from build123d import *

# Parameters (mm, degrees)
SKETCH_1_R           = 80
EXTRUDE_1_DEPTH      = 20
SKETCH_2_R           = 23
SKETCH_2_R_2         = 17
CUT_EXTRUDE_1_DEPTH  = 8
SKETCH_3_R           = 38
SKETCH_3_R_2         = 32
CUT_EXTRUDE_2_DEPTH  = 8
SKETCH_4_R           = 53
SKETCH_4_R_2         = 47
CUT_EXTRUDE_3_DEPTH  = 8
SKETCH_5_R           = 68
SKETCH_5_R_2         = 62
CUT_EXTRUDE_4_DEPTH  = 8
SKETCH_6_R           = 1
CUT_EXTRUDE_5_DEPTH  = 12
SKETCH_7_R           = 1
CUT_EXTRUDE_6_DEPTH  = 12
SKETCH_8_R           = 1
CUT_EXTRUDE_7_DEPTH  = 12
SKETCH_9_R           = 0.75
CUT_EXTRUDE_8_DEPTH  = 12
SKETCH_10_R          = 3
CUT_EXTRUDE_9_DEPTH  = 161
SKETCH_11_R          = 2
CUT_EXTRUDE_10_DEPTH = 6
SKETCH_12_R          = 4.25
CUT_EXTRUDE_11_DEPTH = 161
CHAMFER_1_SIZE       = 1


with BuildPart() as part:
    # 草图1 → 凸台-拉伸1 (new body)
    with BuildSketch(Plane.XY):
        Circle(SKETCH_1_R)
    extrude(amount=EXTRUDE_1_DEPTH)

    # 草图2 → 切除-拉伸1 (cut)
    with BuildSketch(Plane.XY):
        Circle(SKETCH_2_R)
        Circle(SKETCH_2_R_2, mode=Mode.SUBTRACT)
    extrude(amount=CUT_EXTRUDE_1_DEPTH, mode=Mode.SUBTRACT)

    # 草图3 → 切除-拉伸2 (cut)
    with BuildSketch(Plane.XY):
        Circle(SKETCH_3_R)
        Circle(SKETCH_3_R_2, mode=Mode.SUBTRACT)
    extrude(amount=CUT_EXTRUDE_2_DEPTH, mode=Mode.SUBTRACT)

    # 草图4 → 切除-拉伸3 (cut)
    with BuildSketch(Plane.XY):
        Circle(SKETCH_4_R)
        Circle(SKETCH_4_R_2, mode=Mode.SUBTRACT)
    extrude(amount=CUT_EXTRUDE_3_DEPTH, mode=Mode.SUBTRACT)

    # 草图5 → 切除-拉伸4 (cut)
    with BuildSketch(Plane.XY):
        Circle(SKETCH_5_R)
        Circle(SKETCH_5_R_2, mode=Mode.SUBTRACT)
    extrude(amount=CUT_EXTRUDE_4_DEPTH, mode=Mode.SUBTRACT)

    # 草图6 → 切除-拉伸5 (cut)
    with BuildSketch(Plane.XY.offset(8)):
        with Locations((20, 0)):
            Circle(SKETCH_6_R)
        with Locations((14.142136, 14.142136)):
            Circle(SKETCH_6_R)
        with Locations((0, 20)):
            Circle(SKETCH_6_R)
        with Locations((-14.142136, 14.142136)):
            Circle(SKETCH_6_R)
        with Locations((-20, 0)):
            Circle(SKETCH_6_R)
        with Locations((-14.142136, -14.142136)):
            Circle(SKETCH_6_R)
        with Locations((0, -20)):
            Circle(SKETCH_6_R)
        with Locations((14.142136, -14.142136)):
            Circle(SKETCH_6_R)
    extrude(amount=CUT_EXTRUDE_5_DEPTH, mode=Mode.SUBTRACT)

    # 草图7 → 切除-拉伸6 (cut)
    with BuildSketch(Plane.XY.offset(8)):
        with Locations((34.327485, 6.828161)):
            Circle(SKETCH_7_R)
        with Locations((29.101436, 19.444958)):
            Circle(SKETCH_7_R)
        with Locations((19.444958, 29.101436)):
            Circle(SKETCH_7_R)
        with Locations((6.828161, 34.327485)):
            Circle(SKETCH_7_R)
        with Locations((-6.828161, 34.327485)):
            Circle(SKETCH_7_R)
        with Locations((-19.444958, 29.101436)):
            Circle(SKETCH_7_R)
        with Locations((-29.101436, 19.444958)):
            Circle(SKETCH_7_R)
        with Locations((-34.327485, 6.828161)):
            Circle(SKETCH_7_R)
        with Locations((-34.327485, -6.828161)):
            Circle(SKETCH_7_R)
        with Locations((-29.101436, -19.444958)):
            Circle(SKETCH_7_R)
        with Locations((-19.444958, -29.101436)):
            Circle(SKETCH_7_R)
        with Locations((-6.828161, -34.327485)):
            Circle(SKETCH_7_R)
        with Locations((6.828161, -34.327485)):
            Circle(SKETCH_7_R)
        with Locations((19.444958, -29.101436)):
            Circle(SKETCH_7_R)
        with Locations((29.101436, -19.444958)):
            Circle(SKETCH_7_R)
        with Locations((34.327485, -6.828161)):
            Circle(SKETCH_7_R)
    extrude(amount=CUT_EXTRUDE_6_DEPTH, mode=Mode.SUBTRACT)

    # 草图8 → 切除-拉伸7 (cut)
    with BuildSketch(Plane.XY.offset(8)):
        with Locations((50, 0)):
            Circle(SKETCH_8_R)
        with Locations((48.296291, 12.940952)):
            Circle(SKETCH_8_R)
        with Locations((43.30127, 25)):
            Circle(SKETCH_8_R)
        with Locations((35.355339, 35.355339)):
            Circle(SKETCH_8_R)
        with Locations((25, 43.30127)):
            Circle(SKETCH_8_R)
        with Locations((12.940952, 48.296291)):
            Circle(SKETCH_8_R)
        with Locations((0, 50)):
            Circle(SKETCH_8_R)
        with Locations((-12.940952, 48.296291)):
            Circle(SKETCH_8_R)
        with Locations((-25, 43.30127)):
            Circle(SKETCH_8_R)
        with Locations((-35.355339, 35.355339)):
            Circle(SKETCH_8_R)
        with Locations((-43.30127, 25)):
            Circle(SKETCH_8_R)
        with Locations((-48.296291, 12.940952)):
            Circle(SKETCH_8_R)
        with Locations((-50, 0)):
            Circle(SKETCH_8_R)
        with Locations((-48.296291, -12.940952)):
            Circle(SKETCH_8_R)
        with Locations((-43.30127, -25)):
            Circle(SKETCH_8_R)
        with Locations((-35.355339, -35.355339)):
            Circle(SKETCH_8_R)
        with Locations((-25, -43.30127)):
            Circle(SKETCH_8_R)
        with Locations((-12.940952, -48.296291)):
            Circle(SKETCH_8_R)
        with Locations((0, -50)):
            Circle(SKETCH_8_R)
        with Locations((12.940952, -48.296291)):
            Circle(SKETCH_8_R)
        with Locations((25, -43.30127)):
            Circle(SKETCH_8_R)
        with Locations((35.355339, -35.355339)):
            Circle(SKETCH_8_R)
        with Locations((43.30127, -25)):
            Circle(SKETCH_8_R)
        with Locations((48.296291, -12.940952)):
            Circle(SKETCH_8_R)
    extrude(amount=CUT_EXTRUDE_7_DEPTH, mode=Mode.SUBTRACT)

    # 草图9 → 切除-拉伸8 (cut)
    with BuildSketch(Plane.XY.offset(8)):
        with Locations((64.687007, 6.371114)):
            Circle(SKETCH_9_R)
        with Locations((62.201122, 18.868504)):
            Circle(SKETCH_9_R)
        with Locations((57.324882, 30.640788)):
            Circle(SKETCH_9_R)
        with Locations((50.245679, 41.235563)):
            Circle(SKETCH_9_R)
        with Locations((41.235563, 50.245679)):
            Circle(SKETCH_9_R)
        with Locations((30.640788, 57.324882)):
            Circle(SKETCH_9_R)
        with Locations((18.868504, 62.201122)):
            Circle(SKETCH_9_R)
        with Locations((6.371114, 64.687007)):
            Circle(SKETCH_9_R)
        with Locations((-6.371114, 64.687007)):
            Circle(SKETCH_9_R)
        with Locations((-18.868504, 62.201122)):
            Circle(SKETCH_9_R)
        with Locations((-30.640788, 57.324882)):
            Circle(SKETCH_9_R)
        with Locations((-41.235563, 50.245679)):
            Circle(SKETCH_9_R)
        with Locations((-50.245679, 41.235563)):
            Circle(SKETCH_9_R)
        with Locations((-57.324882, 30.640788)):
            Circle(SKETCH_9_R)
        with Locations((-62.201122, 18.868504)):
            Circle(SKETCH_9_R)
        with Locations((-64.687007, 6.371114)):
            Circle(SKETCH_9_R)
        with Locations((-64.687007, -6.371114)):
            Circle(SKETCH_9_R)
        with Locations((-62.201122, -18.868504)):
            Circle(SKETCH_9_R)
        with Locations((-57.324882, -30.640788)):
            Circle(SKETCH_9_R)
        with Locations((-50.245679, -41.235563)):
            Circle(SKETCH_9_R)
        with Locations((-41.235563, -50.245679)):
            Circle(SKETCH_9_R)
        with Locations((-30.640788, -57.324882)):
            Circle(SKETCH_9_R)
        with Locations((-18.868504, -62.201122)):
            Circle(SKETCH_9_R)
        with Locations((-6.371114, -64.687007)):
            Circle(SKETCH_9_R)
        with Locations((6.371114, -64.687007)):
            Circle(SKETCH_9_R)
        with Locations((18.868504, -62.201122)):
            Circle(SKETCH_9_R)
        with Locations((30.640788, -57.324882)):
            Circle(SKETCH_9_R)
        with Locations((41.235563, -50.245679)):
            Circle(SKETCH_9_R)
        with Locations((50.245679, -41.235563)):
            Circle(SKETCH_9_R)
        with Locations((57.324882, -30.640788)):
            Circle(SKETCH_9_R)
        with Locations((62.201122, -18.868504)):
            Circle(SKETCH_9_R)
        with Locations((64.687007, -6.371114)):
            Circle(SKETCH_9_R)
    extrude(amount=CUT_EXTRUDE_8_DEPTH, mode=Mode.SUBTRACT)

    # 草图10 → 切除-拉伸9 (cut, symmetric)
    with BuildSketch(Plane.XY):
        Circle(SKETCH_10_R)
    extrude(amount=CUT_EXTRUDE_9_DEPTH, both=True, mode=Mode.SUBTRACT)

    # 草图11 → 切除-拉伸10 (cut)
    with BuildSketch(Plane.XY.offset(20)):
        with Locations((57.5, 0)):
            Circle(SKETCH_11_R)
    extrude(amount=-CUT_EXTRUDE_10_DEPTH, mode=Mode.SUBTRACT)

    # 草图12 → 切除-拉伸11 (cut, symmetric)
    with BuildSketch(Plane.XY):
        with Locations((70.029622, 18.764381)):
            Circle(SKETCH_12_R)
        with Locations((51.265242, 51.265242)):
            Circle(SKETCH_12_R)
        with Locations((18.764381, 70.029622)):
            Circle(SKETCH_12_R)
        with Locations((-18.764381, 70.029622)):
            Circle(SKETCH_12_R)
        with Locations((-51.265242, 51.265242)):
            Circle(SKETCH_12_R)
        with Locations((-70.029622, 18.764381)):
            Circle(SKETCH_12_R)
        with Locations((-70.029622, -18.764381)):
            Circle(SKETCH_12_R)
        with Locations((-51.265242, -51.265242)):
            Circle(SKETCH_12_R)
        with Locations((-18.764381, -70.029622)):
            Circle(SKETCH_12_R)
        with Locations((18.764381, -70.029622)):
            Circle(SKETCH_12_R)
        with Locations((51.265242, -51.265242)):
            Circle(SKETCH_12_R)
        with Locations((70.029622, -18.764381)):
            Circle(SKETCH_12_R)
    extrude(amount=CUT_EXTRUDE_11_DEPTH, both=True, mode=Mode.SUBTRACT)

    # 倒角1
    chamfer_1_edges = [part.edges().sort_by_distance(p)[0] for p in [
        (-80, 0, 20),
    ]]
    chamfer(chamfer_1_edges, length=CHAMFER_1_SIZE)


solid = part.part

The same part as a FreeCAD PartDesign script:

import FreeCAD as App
import Part
import Sketcher

V = App.Vector


def edges_at(feature, points):
    """Names of the edges that pass closest to the given points."""
    edges = feature.Shape.Edges
    near = lambda p: min(range(len(edges)), key=lambda i: edges[i].distToShape(Part.Vertex(*p))[0])
    return sorted({f"Edge{near(p) + 1}" for p in points})

doc = App.newDocument("Part")
body = doc.addObject("PartDesign::Body", "Body")

# Sketch on XY plane
sketch1 = doc.addObject("Sketcher::SketchObject", "Sketch")
body.addObject(sketch1)
sketch1.AttachmentSupport = (doc.XY_Plane, [""])
sketch1.MapMode = "FlatFace"
sketch1.addGeometry(Part.Circle(V(0, 0, 0), V(0, 0, 1), 80), False)
sketch1.addConstraint(Sketcher.Constraint("Coincident", 0, 3, -1, 1))
sketch1.addConstraint(Sketcher.Constraint("Diameter", 0, 160.0))
pad1 = doc.addObject("PartDesign::Pad", "Pad")
body.addObject(pad1)
pad1.Profile = sketch1
pad1.Length = 20

# Sketch on XY plane
sketch2 = doc.addObject("Sketcher::SketchObject", "Sketch001")
body.addObject(sketch2)
sketch2.AttachmentSupport = (doc.XY_Plane, [""])
sketch2.MapMode = "FlatFace"
sketch2.addGeometry(Part.Circle(V(0, 0, 0), V(0, 0, 1), 23), False)
sketch2.addGeometry(Part.Circle(V(0, 0, 0), V(0, 0, 1), 17), False)
sketch2.addConstraint(Sketcher.Constraint("Coincident", 0, 3, -1, 1))
sketch2.addConstraint(Sketcher.Constraint("Coincident", 1, 3, -1, 1))
sketch2.addConstraint(Sketcher.Constraint("Diameter", 0, 46.0))
sketch2.addConstraint(Sketcher.Constraint("Diameter", 1, 34.0))
pocket1 = doc.addObject("PartDesign::Pocket", "Pocket")
body.addObject(pocket1)
pocket1.Profile = sketch2
pocket1.Length = 8
pocket1.Reversed = True

# Sketch on XY plane
sketch3 = doc.addObject("Sketcher::SketchObject", "Sketch002")
body.addObject(sketch3)
sketch3.AttachmentSupport = (doc.XY_Plane, [""])
sketch3.MapMode = "FlatFace"
sketch3.addGeometry(Part.Circle(V(0, 0, 0), V(0, 0, 1), 38), False)
sketch3.addGeometry(Part.Circle(V(0, 0, 0), V(0, 0, 1), 32), False)
sketch3.addConstraint(Sketcher.Constraint("Coincident", 0, 3, -1, 1))
sketch3.addConstraint(Sketcher.Constraint("Coincident", 1, 3, -1, 1))
sketch3.addConstraint(Sketcher.Constraint("Diameter", 0, 76.0))
sketch3.addConstraint(Sketcher.Constraint("Diameter", 1, 64.0))
pocket2 = doc.addObject("PartDesign::Pocket", "Pocket001")
body.addObject(pocket2)
pocket2.Profile = sketch3
pocket2.Length = 8
pocket2.Reversed = True

# Sketch on XY plane
sketch4 = doc.addObject("Sketcher::SketchObject", "Sketch003")
body.addObject(sketch4)
sketch4.AttachmentSupport = (doc.XY_Plane, [""])
sketch4.MapMode = "FlatFace"
sketch4.addGeometry(Part.Circle(V(0, 0, 0), V(0, 0, 1), 53), False)
sketch4.addGeometry(Part.Circle(V(0, 0, 0), V(0, 0, 1), 47), False)
sketch4.addConstraint(Sketcher.Constraint("Coincident", 0, 3, -1, 1))
sketch4.addConstraint(Sketcher.Constraint("Coincident", 1, 3, -1, 1))
sketch4.addConstraint(Sketcher.Constraint("Diameter", 0, 106.0))
sketch4.addConstraint(Sketcher.Constraint("Diameter", 1, 94.0))
pocket3 = doc.addObject("PartDesign::Pocket", "Pocket002")
body.addObject(pocket3)
pocket3.Profile = sketch4
pocket3.Length = 8
pocket3.Reversed = True

# Sketch on XY plane
sketch5 = doc.addObject("Sketcher::SketchObject", "Sketch004")
body.addObject(sketch5)
sketch5.AttachmentSupport = (doc.XY_Plane, [""])
sketch5.MapMode = "FlatFace"
sketch5.addGeometry(Part.Circle(V(0, 0, 0), V(0, 0, 1), 68), False)
sketch5.addGeometry(Part.Circle(V(0, 0, 0), V(0, 0, 1), 62), False)
sketch5.addConstraint(Sketcher.Constraint("Coincident", 0, 3, -1, 1))
sketch5.addConstraint(Sketcher.Constraint("Coincident", 1, 3, -1, 1))
sketch5.addConstraint(Sketcher.Constraint("Diameter", 0, 136.0))
sketch5.addConstraint(Sketcher.Constraint("Diameter", 1, 124.0))
pocket4 = doc.addObject("PartDesign::Pocket", "Pocket003")
body.addObject(pocket4)
pocket4.Profile = sketch5
pocket4.Length = 8
pocket4.Reversed = True

# Sketch on XY plane
sketch6 = doc.addObject("Sketcher::SketchObject", "Sketch005")
body.addObject(sketch6)
sketch6.AttachmentSupport = (doc.XY_Plane, [""])
sketch6.MapMode = "FlatFace"
sketch6.AttachmentOffset = App.Placement(V(0, 0, 8), App.Rotation())
sketch6.addGeometry(Part.Circle(V(20, 0, 0), V(0, 0, 1), 1), False)
sketch6.addGeometry(Part.Circle(V(14.142136, 14.142136, 0), V(0, 0, 1), 1), False)
sketch6.addGeometry(Part.Circle(V(0, 20, 0), V(0, 0, 1), 1), False)
sketch6.addGeometry(Part.Circle(V(-14.142136, 14.142136, 0), V(0, 0, 1), 1), False)
sketch6.addGeometry(Part.Circle(V(-20, 0, 0), V(0, 0, 1), 1), False)
sketch6.addGeometry(Part.Circle(V(-14.142136, -14.142136, 0), V(0, 0, 1), 1), False)
sketch6.addGeometry(Part.Circle(V(0, -20, 0), V(0, 0, 1), 1), False)
sketch6.addGeometry(Part.Circle(V(14.142136, -14.142136, 0), V(0, 0, 1), 1), False)
sketch6.addConstraint(Sketcher.Constraint("Equal", 0, 1))
sketch6.addConstraint(Sketcher.Constraint("Equal", 1, 2))
sketch6.addConstraint(Sketcher.Constraint("Equal", 2, 3))
sketch6.addConstraint(Sketcher.Constraint("Equal", 3, 4))
sketch6.addConstraint(Sketcher.Constraint("Equal", 4, 5))
sketch6.addConstraint(Sketcher.Constraint("Equal", 5, 6))
sketch6.addConstraint(Sketcher.Constraint("Equal", 6, 7))
sketch6.addConstraint(Sketcher.Constraint("Symmetric", 0, 3, 4, 3, -1, 1))
sketch6.addConstraint(Sketcher.Constraint("Symmetric", 1, 3, 5, 3, -1, 1))
sketch6.addConstraint(Sketcher.Constraint("Symmetric", 2, 3, 6, 3, -1, 1))
sketch6.addConstraint(Sketcher.Constraint("Symmetric", 3, 3, 7, 3, -1, 1))
sketch6.addConstraint(Sketcher.Constraint("Symmetric", 1, 3, 3, 3, -2))
sketch6.addConstraint(Sketcher.Constraint("PointOnObject", 0, 3, -1))
sketch6.addConstraint(Sketcher.Constraint("PointOnObject", 2, 3, -2))
sketch6.addConstraint(Sketcher.Constraint("Diameter", 0, 2.0))
sketch6.addConstraint(Sketcher.Constraint("DistanceX", -1, 1, 0, 3, 20.0))
sketch6.addConstraint(Sketcher.Constraint("DistanceY", -1, 1, 2, 3, 20.0))
sketch6.addConstraint(Sketcher.Constraint("DistanceX", -1, 1, 1, 3, 14.142136))
sketch6.addConstraint(Sketcher.Constraint("DistanceY", -1, 1, 1, 3, 14.142136))
pocket5 = doc.addObject("PartDesign::Pocket", "Pocket004")
body.addObject(pocket5)
pocket5.Profile = sketch6
pocket5.Length = 12
pocket5.Reversed = True

# Sketch on XY plane
sketch7 = doc.addObject("Sketcher::SketchObject", "Sketch006")
body.addObject(sketch7)
sketch7.AttachmentSupport = (doc.XY_Plane, [""])
sketch7.MapMode = "FlatFace"
sketch7.AttachmentOffset = App.Placement(V(0, 0, 8), App.Rotation())
sketch7.addGeometry(Part.Circle(V(34.327485, 6.828161, 0), V(0, 0, 1), 1), False)
sketch7.addGeometry(Part.Circle(V(29.101436, 19.444958, 0), V(0, 0, 1), 1), False)
sketch7.addGeometry(Part.Circle(V(19.444958, 29.101436, 0), V(0, 0, 1), 1), False)
sketch7.addGeometry(Part.Circle(V(6.828161, 34.327485, 0), V(0, 0, 1), 1), False)
sketch7.addGeometry(Part.Circle(V(-6.828161, 34.327485, 0), V(0, 0, 1), 1), False)
sketch7.addGeometry(Part.Circle(V(-19.444958, 29.101436, 0), V(0, 0, 1), 1), False)
sketch7.addGeometry(Part.Circle(V(-29.101436, 19.444958, 0), V(0, 0, 1), 1), False)
sketch7.addGeometry(Part.Circle(V(-34.327485, 6.828161, 0), V(0, 0, 1), 1), False)
sketch7.addGeometry(Part.Circle(V(-34.327485, -6.828161, 0), V(0, 0, 1), 1), False)
sketch7.addGeometry(Part.Circle(V(-29.101436, -19.444958, 0), V(0, 0, 1), 1), False)
sketch7.addGeometry(Part.Circle(V(-19.444958, -29.101436, 0), V(0, 0, 1), 1), False)
sketch7.addGeometry(Part.Circle(V(-6.828161, -34.327485, 0), V(0, 0, 1), 1), False)
sketch7.addGeometry(Part.Circle(V(6.828161, -34.327485, 0), V(0, 0, 1), 1), False)
sketch7.addGeometry(Part.Circle(V(19.444958, -29.101436, 0), V(0, 0, 1), 1), False)
sketch7.addGeometry(Part.Circle(V(29.101436, -19.444958, 0), V(0, 0, 1), 1), False)
sketch7.addGeometry(Part.Circle(V(34.327485, -6.828161, 0), V(0, 0, 1), 1), False)
sketch7.addConstraint(Sketcher.Constraint("Equal", 0, 1))
sketch7.addConstraint(Sketcher.Constraint("Equal", 1, 2))
sketch7.addConstraint(Sketcher.Constraint("Equal", 2, 3))
sketch7.addConstraint(Sketcher.Constraint("Equal", 3, 4))
sketch7.addConstraint(Sketcher.Constraint("Equal", 4, 5))
sketch7.addConstraint(Sketcher.Constraint("Equal", 5, 6))
sketch7.addConstraint(Sketcher.Constraint("Equal", 6, 7))
sketch7.addConstraint(Sketcher.Constraint("Equal", 7, 8))
sketch7.addConstraint(Sketcher.Constraint("Equal", 8, 9))
sketch7.addConstraint(Sketcher.Constraint("Equal", 9, 10))
sketch7.addConstraint(Sketcher.Constraint("Equal", 10, 11))
sketch7.addConstraint(Sketcher.Constraint("Equal", 11, 12))
sketch7.addConstraint(Sketcher.Constraint("Equal", 12, 13))
sketch7.addConstraint(Sketcher.Constraint("Equal", 13, 14))
sketch7.addConstraint(Sketcher.Constraint("Equal", 14, 15))
sketch7.addConstraint(Sketcher.Constraint("Symmetric", 0, 3, 8, 3, -1, 1))
sketch7.addConstraint(Sketcher.Constraint("Symmetric", 1, 3, 9, 3, -1, 1))
sketch7.addConstraint(Sketcher.Constraint("Symmetric", 2, 3, 10, 3, -1, 1))
sketch7.addConstraint(Sketcher.Constraint("Symmetric", 3, 3, 11, 3, -1, 1))
sketch7.addConstraint(Sketcher.Constraint("Symmetric", 4, 3, 12, 3, -1, 1))
sketch7.addConstraint(Sketcher.Constraint("Symmetric", 5, 3, 13, 3, -1, 1))
sketch7.addConstraint(Sketcher.Constraint("Symmetric", 6, 3, 14, 3, -1, 1))
sketch7.addConstraint(Sketcher.Constraint("Symmetric", 7, 3, 15, 3, -1, 1))
sketch7.addConstraint(Sketcher.Constraint("Symmetric", 3, 3, 4, 3, -2))
sketch7.addConstraint(Sketcher.Constraint("Symmetric", 2, 3, 5, 3, -2))
sketch7.addConstraint(Sketcher.Constraint("Symmetric", 1, 3, 6, 3, -2))
sketch7.addConstraint(Sketcher.Constraint("Symmetric", 0, 3, 7, 3, -2))
sketch7.addConstraint(Sketcher.Constraint("Diameter", 0, 2.0))
sketch7.addConstraint(Sketcher.Constraint("DistanceY", -1, 1, 0, 3, 6.828161))
sketch7.addConstraint(Sketcher.Constraint("DistanceY", -1, 1, 1, 3, 19.444958))
sketch7.addConstraint(Sketcher.Constraint("DistanceX", -1, 1, 2, 3, 19.444958))
sketch7.addConstraint(Sketcher.Constraint("DistanceX", -1, 1, 3, 3, 6.828161))
sketch7.addConstraint(Sketcher.Constraint("DistanceX", 1, 3, 0, 3, 5.226049))
sketch7.addConstraint(Sketcher.Constraint("DistanceY", 2, 3, 3, 3, 5.226049))
sketch7.addConstraint(Sketcher.Constraint("DistanceX", -1, 1, 0, 3, 34.327485))
sketch7.addConstraint(Sketcher.Constraint("DistanceY", -1, 1, 2, 3, 29.101436))
pocket6 = doc.addObject("PartDesign::Pocket", "Pocket005")
body.addObject(pocket6)
pocket6.Profile = sketch7
pocket6.Length = 12
pocket6.Reversed = True

# Sketch on XY plane
sketch8 = doc.addObject("Sketcher::SketchObject", "Sketch007")
body.addObject(sketch8)
sketch8.AttachmentSupport = (doc.XY_Plane, [""])
sketch8.MapMode = "FlatFace"
sketch8.AttachmentOffset = App.Placement(V(0, 0, 8), App.Rotation())
sketch8.addGeometry(Part.Circle(V(50, 0, 0), V(0, 0, 1), 1), False)
sketch8.addGeometry(Part.Circle(V(48.296291, 12.940952, 0), V(0, 0, 1), 1), False)
sketch8.addGeometry(Part.Circle(V(43.30127, 25, 0), V(0, 0, 1), 1), False)
sketch8.addGeometry(Part.Circle(V(35.355339, 35.355339, 0), V(0, 0, 1), 1), False)
sketch8.addGeometry(Part.Circle(V(25, 43.30127, 0), V(0, 0, 1), 1), False)
sketch8.addGeometry(Part.Circle(V(12.940952, 48.296291, 0), V(0, 0, 1), 1), False)
sketch8.addGeometry(Part.Circle(V(0, 50, 0), V(0, 0, 1), 1), False)
sketch8.addGeometry(Part.Circle(V(-12.940952, 48.296291, 0), V(0, 0, 1), 1), False)
sketch8.addGeometry(Part.Circle(V(-25, 43.30127, 0), V(0, 0, 1), 1), False)
sketch8.addGeometry(Part.Circle(V(-35.355339, 35.355339, 0), V(0, 0, 1), 1), False)
sketch8.addGeometry(Part.Circle(V(-43.30127, 25, 0), V(0, 0, 1), 1), False)
sketch8.addGeometry(Part.Circle(V(-48.296291, 12.940952, 0), V(0, 0, 1), 1), False)
sketch8.addGeometry(Part.Circle(V(-50, 0, 0), V(0, 0, 1), 1), False)
sketch8.addGeometry(Part.Circle(V(-48.296291, -12.940952, 0), V(0, 0, 1), 1), False)
sketch8.addGeometry(Part.Circle(V(-43.30127, -25, 0), V(0, 0, 1), 1), False)
sketch8.addGeometry(Part.Circle(V(-35.355339, -35.355339, 0), V(0, 0, 1), 1), False)
sketch8.addGeometry(Part.Circle(V(-25, -43.30127, 0), V(0, 0, 1), 1), False)
sketch8.addGeometry(Part.Circle(V(-12.940952, -48.296291, 0), V(0, 0, 1), 1), False)
sketch8.addGeometry(Part.Circle(V(0, -50, 0), V(0, 0, 1), 1), False)
sketch8.addGeometry(Part.Circle(V(12.940952, -48.296291, 0), V(0, 0, 1), 1), False)
sketch8.addGeometry(Part.Circle(V(25, -43.30127, 0), V(0, 0, 1), 1), False)
sketch8.addGeometry(Part.Circle(V(35.355339, -35.355339, 0), V(0, 0, 1), 1), False)
sketch8.addGeometry(Part.Circle(V(43.30127, -25, 0), V(0, 0, 1), 1), False)
sketch8.addGeometry(Part.Circle(V(48.296291, -12.940952, 0), V(0, 0, 1), 1), False)
sketch8.addConstraint(Sketcher.Constraint("Equal", 0, 1))
sketch8.addConstraint(Sketcher.Constraint("Equal", 1, 2))
sketch8.addConstraint(Sketcher.Constraint("Equal", 2, 3))
sketch8.addConstraint(Sketcher.Constraint("Equal", 3, 4))
sketch8.addConstraint(Sketcher.Constraint("Equal", 4, 5))
sketch8.addConstraint(Sketcher.Constraint("Equal", 5, 6))
sketch8.addConstraint(Sketcher.Constraint("Equal", 6, 7))
sketch8.addConstraint(Sketcher.Constraint("Equal", 7, 8))
sketch8.addConstraint(Sketcher.Constraint("Equal", 8, 9))
sketch8.addConstraint(Sketcher.Constraint("Equal", 9, 10))
sketch8.addConstraint(Sketcher.Constraint("Equal", 10, 11))
sketch8.addConstraint(Sketcher.Constraint("Equal", 11, 12))
sketch8.addConstraint(Sketcher.Constraint("Equal", 12, 13))
sketch8.addConstraint(Sketcher.Constraint("Equal", 13, 14))
sketch8.addConstraint(Sketcher.Constraint("Equal", 14, 15))
sketch8.addConstraint(Sketcher.Constraint("Equal", 15, 16))
sketch8.addConstraint(Sketcher.Constraint("Equal", 16, 17))
sketch8.addConstraint(Sketcher.Constraint("Equal", 17, 18))
sketch8.addConstraint(Sketcher.Constraint("Equal", 18, 19))
sketch8.addConstraint(Sketcher.Constraint("Equal", 19, 20))
sketch8.addConstraint(Sketcher.Constraint("Equal", 20, 21))
sketch8.addConstraint(Sketcher.Constraint("Equal", 21, 22))
sketch8.addConstraint(Sketcher.Constraint("Equal", 22, 23))
sketch8.addConstraint(Sketcher.Constraint("Symmetric", 0, 3, 12, 3, -1, 1))
sketch8.addConstraint(Sketcher.Constraint("Symmetric", 1, 3, 13, 3, -1, 1))
sketch8.addConstraint(Sketcher.Constraint("Symmetric", 2, 3, 14, 3, -1, 1))
sketch8.addConstraint(Sketcher.Constraint("Symmetric", 3, 3, 15, 3, -1, 1))
sketch8.addConstraint(Sketcher.Constraint("Symmetric", 4, 3, 16, 3, -1, 1))
sketch8.addConstraint(Sketcher.Constraint("Symmetric", 5, 3, 17, 3, -1, 1))
sketch8.addConstraint(Sketcher.Constraint("Symmetric", 6, 3, 18, 3, -1, 1))
sketch8.addConstraint(Sketcher.Constraint("Symmetric", 7, 3, 19, 3, -1, 1))
sketch8.addConstraint(Sketcher.Constraint("Symmetric", 8, 3, 20, 3, -1, 1))
sketch8.addConstraint(Sketcher.Constraint("Symmetric", 9, 3, 21, 3, -1, 1))
sketch8.addConstraint(Sketcher.Constraint("Symmetric", 10, 3, 22, 3, -1, 1))
sketch8.addConstraint(Sketcher.Constraint("Symmetric", 11, 3, 23, 3, -1, 1))
sketch8.addConstraint(Sketcher.Constraint("Symmetric", 5, 3, 7, 3, -2))
sketch8.addConstraint(Sketcher.Constraint("Symmetric", 4, 3, 8, 3, -2))
sketch8.addConstraint(Sketcher.Constraint("Symmetric", 3, 3, 9, 3, -2))
sketch8.addConstraint(Sketcher.Constraint("Symmetric", 2, 3, 10, 3, -2))
sketch8.addConstraint(Sketcher.Constraint("Symmetric", 1, 3, 11, 3, -2))
sketch8.addConstraint(Sketcher.Constraint("PointOnObject", 0, 3, -1))
sketch8.addConstraint(Sketcher.Constraint("PointOnObject", 6, 3, -2))
sketch8.addConstraint(Sketcher.Constraint("Diameter", 0, 2.0))
sketch8.addConstraint(Sketcher.Constraint("DistanceX", -1, 1, 0, 3, 50.0))
sketch8.addConstraint(Sketcher.Constraint("DistanceY", -1, 1, 2, 3, 25.0))
sketch8.addConstraint(Sketcher.Constraint("DistanceX", -1, 1, 4, 3, 25.0))
sketch8.addConstraint(Sketcher.Constraint("DistanceY", -1, 1, 6, 3, 50.0))
sketch8.addConstraint(Sketcher.Constraint("DistanceX", -1, 1, 1, 3, 48.296291))
sketch8.addConstraint(Sketcher.Constraint("DistanceY", -1, 1, 1, 3, 12.940952))
sketch8.addConstraint(Sketcher.Constraint("DistanceX", -1, 1, 2, 3, 43.30127))
sketch8.addConstraint(Sketcher.Constraint("DistanceX", -1, 1, 3, 3, 35.355339))
sketch8.addConstraint(Sketcher.Constraint("DistanceY", -1, 1, 3, 3, 35.355339))
sketch8.addConstraint(Sketcher.Constraint("DistanceY", -1, 1, 4, 3, 43.30127))
sketch8.addConstraint(Sketcher.Constraint("DistanceX", -1, 1, 5, 3, 12.940952))
sketch8.addConstraint(Sketcher.Constraint("DistanceY", -1, 1, 5, 3, 48.296291))
pocket7 = doc.addObject("PartDesign::Pocket", "Pocket006")
body.addObject(pocket7)
pocket7.Profile = sketch8
pocket7.Length = 12
pocket7.Reversed = True

# Sketch on XY plane
sketch9 = doc.addObject("Sketcher::SketchObject", "Sketch008")
body.addObject(sketch9)
sketch9.AttachmentSupport = (doc.XY_Plane, [""])
sketch9.MapMode = "FlatFace"
sketch9.AttachmentOffset = App.Placement(V(0, 0, 8), App.Rotation())
sketch9.addGeometry(Part.Circle(V(64.687007, 6.371114, 0), V(0, 0, 1), 0.75), False)
sketch9.addGeometry(Part.Circle(V(62.201122, 18.868504, 0), V(0, 0, 1), 0.75), False)
sketch9.addGeometry(Part.Circle(V(57.324882, 30.640788, 0), V(0, 0, 1), 0.75), False)
sketch9.addGeometry(Part.Circle(V(50.245679, 41.235563, 0), V(0, 0, 1), 0.75), False)
sketch9.addGeometry(Part.Circle(V(41.235563, 50.245679, 0), V(0, 0, 1), 0.75), False)
sketch9.addGeometry(Part.Circle(V(30.640788, 57.324882, 0), V(0, 0, 1), 0.75), False)
sketch9.addGeometry(Part.Circle(V(18.868504, 62.201122, 0), V(0, 0, 1), 0.75), False)
sketch9.addGeometry(Part.Circle(V(6.371114, 64.687007, 0), V(0, 0, 1), 0.75), False)
sketch9.addGeometry(Part.Circle(V(-6.371114, 64.687007, 0), V(0, 0, 1), 0.75), False)
sketch9.addGeometry(Part.Circle(V(-18.868504, 62.201122, 0), V(0, 0, 1), 0.75), False)
sketch9.addGeometry(Part.Circle(V(-30.640788, 57.324882, 0), V(0, 0, 1), 0.75), False)
sketch9.addGeometry(Part.Circle(V(-41.235563, 50.245679, 0), V(0, 0, 1), 0.75), False)
sketch9.addGeometry(Part.Circle(V(-50.245679, 41.235563, 0), V(0, 0, 1), 0.75), False)
sketch9.addGeometry(Part.Circle(V(-57.324882, 30.640788, 0), V(0, 0, 1), 0.75), False)
sketch9.addGeometry(Part.Circle(V(-62.201122, 18.868504, 0), V(0, 0, 1), 0.75), False)
sketch9.addGeometry(Part.Circle(V(-64.687007, 6.371114, 0), V(0, 0, 1), 0.75), False)
sketch9.addGeometry(Part.Circle(V(-64.687007, -6.371114, 0), V(0, 0, 1), 0.75), False)
sketch9.addGeometry(Part.Circle(V(-62.201122, -18.868504, 0), V(0, 0, 1), 0.75), False)
sketch9.addGeometry(Part.Circle(V(-57.324882, -30.640788, 0), V(0, 0, 1), 0.75), False)
sketch9.addGeometry(Part.Circle(V(-50.245679, -41.235563, 0), V(0, 0, 1), 0.75), False)
sketch9.addGeometry(Part.Circle(V(-41.235563, -50.245679, 0), V(0, 0, 1), 0.75), False)
sketch9.addGeometry(Part.Circle(V(-30.640788, -57.324882, 0), V(0, 0, 1), 0.75), False)
sketch9.addGeometry(Part.Circle(V(-18.868504, -62.201122, 0), V(0, 0, 1), 0.75), False)
sketch9.addGeometry(Part.Circle(V(-6.371114, -64.687007, 0), V(0, 0, 1), 0.75), False)
sketch9.addGeometry(Part.Circle(V(6.371114, -64.687007, 0), V(0, 0, 1), 0.75), False)
sketch9.addGeometry(Part.Circle(V(18.868504, -62.201122, 0), V(0, 0, 1), 0.75), False)
sketch9.addGeometry(Part.Circle(V(30.640788, -57.324882, 0), V(0, 0, 1), 0.75), False)
sketch9.addGeometry(Part.Circle(V(41.235563, -50.245679, 0), V(0, 0, 1), 0.75), False)
sketch9.addGeometry(Part.Circle(V(50.245679, -41.235563, 0), V(0, 0, 1), 0.75), False)
sketch9.addGeometry(Part.Circle(V(57.324882, -30.640788, 0), V(0, 0, 1), 0.75), False)
sketch9.addGeometry(Part.Circle(V(62.201122, -18.868504, 0), V(0, 0, 1), 0.75), False)
sketch9.addGeometry(Part.Circle(V(64.687007, -6.371114, 0), V(0, 0, 1), 0.75), False)
sketch9.addConstraint(Sketcher.Constraint("Equal", 0, 1))
sketch9.addConstraint(Sketcher.Constraint("Equal", 1, 2))
sketch9.addConstraint(Sketcher.Constraint("Equal", 2, 3))
sketch9.addConstraint(Sketcher.Constraint("Equal", 3, 4))
sketch9.addConstraint(Sketcher.Constraint("Equal", 4, 5))
sketch9.addConstraint(Sketcher.Constraint("Equal", 5, 6))
sketch9.addConstraint(Sketcher.Constraint("Equal", 6, 7))
sketch9.addConstraint(Sketcher.Constraint("Equal", 7, 8))
sketch9.addConstraint(Sketcher.Constraint("Equal", 8, 9))
sketch9.addConstraint(Sketcher.Constraint("Equal", 9, 10))
sketch9.addConstraint(Sketcher.Constraint("Equal", 10, 11))
sketch9.addConstraint(Sketcher.Constraint("Equal", 11, 12))
sketch9.addConstraint(Sketcher.Constraint("Equal", 12, 13))
sketch9.addConstraint(Sketcher.Constraint("Equal", 13, 14))
sketch9.addConstraint(Sketcher.Constraint("Equal", 14, 15))
sketch9.addConstraint(Sketcher.Constraint("Equal", 15, 16))
sketch9.addConstraint(Sketcher.Constraint("Equal", 16, 17))
sketch9.addConstraint(Sketcher.Constraint("Equal", 17, 18))
sketch9.addConstraint(Sketcher.Constraint("Equal", 18, 19))
sketch9.addConstraint(Sketcher.Constraint("Equal", 19, 20))
sketch9.addConstraint(Sketcher.Constraint("Equal", 20, 21))
sketch9.addConstraint(Sketcher.Constraint("Equal", 21, 22))
sketch9.addConstraint(Sketcher.Constraint("Equal", 22, 23))
sketch9.addConstraint(Sketcher.Constraint("Equal", 23, 24))
sketch9.addConstraint(Sketcher.Constraint("Equal", 24, 25))
sketch9.addConstraint(Sketcher.Constraint("Equal", 25, 26))
sketch9.addConstraint(Sketcher.Constraint("Equal", 26, 27))
sketch9.addConstraint(Sketcher.Constraint("Equal", 27, 28))
sketch9.addConstraint(Sketcher.Constraint("Equal", 28, 29))
sketch9.addConstraint(Sketcher.Constraint("Equal", 29, 30))
sketch9.addConstraint(Sketcher.Constraint("Equal", 30, 31))
sketch9.addConstraint(Sketcher.Constraint("Symmetric", 0, 3, 16, 3, -1, 1))
sketch9.addConstraint(Sketcher.Constraint("Symmetric", 1, 3, 17, 3, -1, 1))
sketch9.addConstraint(Sketcher.Constraint("Symmetric", 2, 3, 18, 3, -1, 1))
sketch9.addConstraint(Sketcher.Constraint("Symmetric", 3, 3, 19, 3, -1, 1))
sketch9.addConstraint(Sketcher.Constraint("Symmetric", 4, 3, 20, 3, -1, 1))
sketch9.addConstraint(Sketcher.Constraint("Symmetric", 5, 3, 21, 3, -1, 1))
sketch9.addConstraint(Sketcher.Constraint("Symmetric", 6, 3, 22, 3, -1, 1))
sketch9.addConstraint(Sketcher.Constraint("Symmetric", 7, 3, 23, 3, -1, 1))
sketch9.addConstraint(Sketcher.Constraint("Symmetric", 8, 3, 24, 3, -1, 1))
sketch9.addConstraint(Sketcher.Constraint("Symmetric", 9, 3, 25, 3, -1, 1))
sketch9.addConstraint(Sketcher.Constraint("Symmetric", 10, 3, 26, 3, -1, 1))
sketch9.addConstraint(Sketcher.Constraint("Symmetric", 11, 3, 27, 3, -1, 1))
sketch9.addConstraint(Sketcher.Constraint("Symmetric", 12, 3, 28, 3, -1, 1))
sketch9.addConstraint(Sketcher.Constraint("Symmetric", 13, 3, 29, 3, -1, 1))
sketch9.addConstraint(Sketcher.Constraint("Symmetric", 14, 3, 30, 3, -1, 1))
sketch9.addConstraint(Sketcher.Constraint("Symmetric", 15, 3, 31, 3, -1, 1))
sketch9.addConstraint(Sketcher.Constraint("Symmetric", 7, 3, 8, 3, -2))
sketch9.addConstraint(Sketcher.Constraint("Symmetric", 6, 3, 9, 3, -2))
sketch9.addConstraint(Sketcher.Constraint("Symmetric", 5, 3, 10, 3, -2))
sketch9.addConstraint(Sketcher.Constraint("Symmetric", 4, 3, 11, 3, -2))
sketch9.addConstraint(Sketcher.Constraint("Symmetric", 3, 3, 12, 3, -2))
sketch9.addConstraint(Sketcher.Constraint("Symmetric", 2, 3, 13, 3, -2))
sketch9.addConstraint(Sketcher.Constraint("Symmetric", 1, 3, 14, 3, -2))
sketch9.addConstraint(Sketcher.Constraint("Symmetric", 0, 3, 15, 3, -2))
sketch9.addConstraint(Sketcher.Constraint("Diameter", 0, 1.5))
sketch9.addConstraint(Sketcher.Constraint("DistanceX", -1, 1, 1, 3, 62.201122))
sketch9.addConstraint(Sketcher.Constraint("DistanceY", -1, 1, 2, 3, 30.640788))
sketch9.addConstraint(Sketcher.Constraint("DistanceX", -1, 1, 3, 3, 50.245679))
sketch9.addConstraint(Sketcher.Constraint("DistanceY", -1, 1, 4, 3, 50.245679))
sketch9.addConstraint(Sketcher.Constraint("DistanceX", -1, 1, 5, 3, 30.640788))
sketch9.addConstraint(Sketcher.Constraint("DistanceY", -1, 1, 6, 3, 62.201122))
sketch9.addConstraint(Sketcher.Constraint("DistanceY", 0, 3, 1, 3, 12.49739))
sketch9.addConstraint(Sketcher.Constraint("DistanceX", 2, 3, 1, 3, 4.87624))
sketch9.addConstraint(Sketcher.Constraint("DistanceY", 1, 3, 3, 3, 22.367059))
sketch9.addConstraint(Sketcher.Constraint("DistanceX", 4, 3, 2, 3, 16.089319))
sketch9.addConstraint(Sketcher.Constraint("DistanceY", 3, 3, 5, 3, 16.089319))
sketch9.addConstraint(Sketcher.Constraint("DistanceX", 5, 3, 0, 3, 34.046219))
sketch9.addConstraint(Sketcher.Constraint("DistanceY", 5, 3, 6, 3, 4.87624))
sketch9.addConstraint(Sketcher.Constraint("DistanceX", 6, 3, 4, 3, 22.367059))
sketch9.addConstraint(Sketcher.Constraint("DistanceX", 7, 3, 6, 3, 12.49739))
sketch9.addConstraint(Sketcher.Constraint("DistanceY", 2, 3, 7, 3, 34.046219))
pocket8 = doc.addObject("PartDesign::Pocket", "Pocket007")
body.addObject(pocket8)
pocket8.Profile = sketch9
pocket8.Length = 12
pocket8.Reversed = True

# Sketch on XY plane
sketch10 = doc.addObject("Sketcher::SketchObject", "Sketch009")
body.addObject(sketch10)
sketch10.AttachmentSupport = (doc.XY_Plane, [""])
sketch10.MapMode = "FlatFace"
sketch10.addGeometry(Part.Circle(V(0, 0, 0), V(0, 0, 1), 3), False)
sketch10.addConstraint(Sketcher.Constraint("Coincident", 0, 3, -1, 1))
sketch10.addConstraint(Sketcher.Constraint("Diameter", 0, 6.0))
pocket9 = doc.addObject("PartDesign::Pocket", "Pocket008")
body.addObject(pocket9)
pocket9.Profile = sketch10
pocket9.Length = 322
pocket9.Midplane = True

# Sketch on XY plane
sketch11 = doc.addObject("Sketcher::SketchObject", "Sketch010")
body.addObject(sketch11)
sketch11.AttachmentSupport = (doc.XY_Plane, [""])
sketch11.MapMode = "FlatFace"
sketch11.AttachmentOffset = App.Placement(V(0, 0, 20), App.Rotation())
sketch11.addGeometry(Part.Circle(V(57.5, 0, 0), V(0, 0, 1), 2), False)
sketch11.addConstraint(Sketcher.Constraint("PointOnObject", 0, 3, -1))
sketch11.addConstraint(Sketcher.Constraint("Diameter", 0, 4.0))
sketch11.addConstraint(Sketcher.Constraint("DistanceX", -1, 1, 0, 3, 57.5))
pocket10 = doc.addObject("PartDesign::Pocket", "Pocket009")
body.addObject(pocket10)
pocket10.Profile = sketch11
pocket10.Length = 6

# Sketch on XY plane
sketch12 = doc.addObject("Sketcher::SketchObject", "Sketch011")
body.addObject(sketch12)
sketch12.AttachmentSupport = (doc.XY_Plane, [""])
sketch12.MapMode = "FlatFace"
sketch12.addGeometry(Part.Circle(V(70.029622, 18.764381, 0), V(0, 0, 1), 4.25), False)
sketch12.addGeometry(Part.Circle(V(51.265242, 51.265242, 0), V(0, 0, 1), 4.25), False)
sketch12.addGeometry(Part.Circle(V(18.764381, 70.029622, 0), V(0, 0, 1), 4.25), False)
sketch12.addGeometry(Part.Circle(V(-18.764381, 70.029622, 0), V(0, 0, 1), 4.25), False)
sketch12.addGeometry(Part.Circle(V(-51.265242, 51.265242, 0), V(0, 0, 1), 4.25), False)
sketch12.addGeometry(Part.Circle(V(-70.029622, 18.764381, 0), V(0, 0, 1), 4.25), False)
sketch12.addGeometry(Part.Circle(V(-70.029622, -18.764381, 0), V(0, 0, 1), 4.25), False)
sketch12.addGeometry(Part.Circle(V(-51.265242, -51.265242, 0), V(0, 0, 1), 4.25), False)
sketch12.addGeometry(Part.Circle(V(-18.764381, -70.029622, 0), V(0, 0, 1), 4.25), False)
sketch12.addGeometry(Part.Circle(V(18.764381, -70.029622, 0), V(0, 0, 1), 4.25), False)
sketch12.addGeometry(Part.Circle(V(51.265242, -51.265242, 0), V(0, 0, 1), 4.25), False)
sketch12.addGeometry(Part.Circle(V(70.029622, -18.764381, 0), V(0, 0, 1), 4.25), False)
sketch12.addConstraint(Sketcher.Constraint("Equal", 0, 1))
sketch12.addConstraint(Sketcher.Constraint("Equal", 1, 2))
sketch12.addConstraint(Sketcher.Constraint("Equal", 2, 3))
sketch12.addConstraint(Sketcher.Constraint("Equal", 3, 4))
sketch12.addConstraint(Sketcher.Constraint("Equal", 4, 5))
sketch12.addConstraint(Sketcher.Constraint("Equal", 5, 6))
sketch12.addConstraint(Sketcher.Constraint("Equal", 6, 7))
sketch12.addConstraint(Sketcher.Constraint("Equal", 7, 8))
sketch12.addConstraint(Sketcher.Constraint("Equal", 8, 9))
sketch12.addConstraint(Sketcher.Constraint("Equal", 9, 10))
sketch12.addConstraint(Sketcher.Constraint("Equal", 10, 11))
sketch12.addConstraint(Sketcher.Constraint("Symmetric", 0, 3, 6, 3, -1, 1))
sketch12.addConstraint(Sketcher.Constraint("Symmetric", 1, 3, 7, 3, -1, 1))
sketch12.addConstraint(Sketcher.Constraint("Symmetric", 2, 3, 8, 3, -1, 1))
sketch12.addConstraint(Sketcher.Constraint("Symmetric", 3, 3, 9, 3, -1, 1))
sketch12.addConstraint(Sketcher.Constraint("Symmetric", 4, 3, 10, 3, -1, 1))
sketch12.addConstraint(Sketcher.Constraint("Symmetric", 5, 3, 11, 3, -1, 1))
sketch12.addConstraint(Sketcher.Constraint("Symmetric", 2, 3, 3, 3, -2))
sketch12.addConstraint(Sketcher.Constraint("Symmetric", 1, 3, 4, 3, -2))
sketch12.addConstraint(Sketcher.Constraint("Symmetric", 0, 3, 5, 3, -2))
sketch12.addConstraint(Sketcher.Constraint("Diameter", 0, 8.5))
sketch12.addConstraint(Sketcher.Constraint("DistanceY", -1, 1, 0, 3, 18.764381))
sketch12.addConstraint(Sketcher.Constraint("DistanceX", -1, 1, 2, 3, 18.764381))
sketch12.addConstraint(Sketcher.Constraint("DistanceX", 1, 3, 0, 3, 18.76438))
sketch12.addConstraint(Sketcher.Constraint("DistanceY", 0, 3, 1, 3, 32.500861))
sketch12.addConstraint(Sketcher.Constraint("DistanceX", 2, 3, 1, 3, 32.500861))
sketch12.addConstraint(Sketcher.Constraint("DistanceY", 1, 3, 2, 3, 18.76438))
pocket11 = doc.addObject("PartDesign::Pocket", "Pocket010")
body.addObject(pocket11)
pocket11.Profile = sketch12
pocket11.Length = 322
pocket11.Midplane = True
doc.recompute()

chamfer = doc.addObject("PartDesign::Chamfer", "Chamfer")
body.addObject(chamfer)
chamfer.Base = (pocket11, edges_at(pocket11, [(-80, 0, 20)]))
chamfer.Size = 1

doc.recompute()
